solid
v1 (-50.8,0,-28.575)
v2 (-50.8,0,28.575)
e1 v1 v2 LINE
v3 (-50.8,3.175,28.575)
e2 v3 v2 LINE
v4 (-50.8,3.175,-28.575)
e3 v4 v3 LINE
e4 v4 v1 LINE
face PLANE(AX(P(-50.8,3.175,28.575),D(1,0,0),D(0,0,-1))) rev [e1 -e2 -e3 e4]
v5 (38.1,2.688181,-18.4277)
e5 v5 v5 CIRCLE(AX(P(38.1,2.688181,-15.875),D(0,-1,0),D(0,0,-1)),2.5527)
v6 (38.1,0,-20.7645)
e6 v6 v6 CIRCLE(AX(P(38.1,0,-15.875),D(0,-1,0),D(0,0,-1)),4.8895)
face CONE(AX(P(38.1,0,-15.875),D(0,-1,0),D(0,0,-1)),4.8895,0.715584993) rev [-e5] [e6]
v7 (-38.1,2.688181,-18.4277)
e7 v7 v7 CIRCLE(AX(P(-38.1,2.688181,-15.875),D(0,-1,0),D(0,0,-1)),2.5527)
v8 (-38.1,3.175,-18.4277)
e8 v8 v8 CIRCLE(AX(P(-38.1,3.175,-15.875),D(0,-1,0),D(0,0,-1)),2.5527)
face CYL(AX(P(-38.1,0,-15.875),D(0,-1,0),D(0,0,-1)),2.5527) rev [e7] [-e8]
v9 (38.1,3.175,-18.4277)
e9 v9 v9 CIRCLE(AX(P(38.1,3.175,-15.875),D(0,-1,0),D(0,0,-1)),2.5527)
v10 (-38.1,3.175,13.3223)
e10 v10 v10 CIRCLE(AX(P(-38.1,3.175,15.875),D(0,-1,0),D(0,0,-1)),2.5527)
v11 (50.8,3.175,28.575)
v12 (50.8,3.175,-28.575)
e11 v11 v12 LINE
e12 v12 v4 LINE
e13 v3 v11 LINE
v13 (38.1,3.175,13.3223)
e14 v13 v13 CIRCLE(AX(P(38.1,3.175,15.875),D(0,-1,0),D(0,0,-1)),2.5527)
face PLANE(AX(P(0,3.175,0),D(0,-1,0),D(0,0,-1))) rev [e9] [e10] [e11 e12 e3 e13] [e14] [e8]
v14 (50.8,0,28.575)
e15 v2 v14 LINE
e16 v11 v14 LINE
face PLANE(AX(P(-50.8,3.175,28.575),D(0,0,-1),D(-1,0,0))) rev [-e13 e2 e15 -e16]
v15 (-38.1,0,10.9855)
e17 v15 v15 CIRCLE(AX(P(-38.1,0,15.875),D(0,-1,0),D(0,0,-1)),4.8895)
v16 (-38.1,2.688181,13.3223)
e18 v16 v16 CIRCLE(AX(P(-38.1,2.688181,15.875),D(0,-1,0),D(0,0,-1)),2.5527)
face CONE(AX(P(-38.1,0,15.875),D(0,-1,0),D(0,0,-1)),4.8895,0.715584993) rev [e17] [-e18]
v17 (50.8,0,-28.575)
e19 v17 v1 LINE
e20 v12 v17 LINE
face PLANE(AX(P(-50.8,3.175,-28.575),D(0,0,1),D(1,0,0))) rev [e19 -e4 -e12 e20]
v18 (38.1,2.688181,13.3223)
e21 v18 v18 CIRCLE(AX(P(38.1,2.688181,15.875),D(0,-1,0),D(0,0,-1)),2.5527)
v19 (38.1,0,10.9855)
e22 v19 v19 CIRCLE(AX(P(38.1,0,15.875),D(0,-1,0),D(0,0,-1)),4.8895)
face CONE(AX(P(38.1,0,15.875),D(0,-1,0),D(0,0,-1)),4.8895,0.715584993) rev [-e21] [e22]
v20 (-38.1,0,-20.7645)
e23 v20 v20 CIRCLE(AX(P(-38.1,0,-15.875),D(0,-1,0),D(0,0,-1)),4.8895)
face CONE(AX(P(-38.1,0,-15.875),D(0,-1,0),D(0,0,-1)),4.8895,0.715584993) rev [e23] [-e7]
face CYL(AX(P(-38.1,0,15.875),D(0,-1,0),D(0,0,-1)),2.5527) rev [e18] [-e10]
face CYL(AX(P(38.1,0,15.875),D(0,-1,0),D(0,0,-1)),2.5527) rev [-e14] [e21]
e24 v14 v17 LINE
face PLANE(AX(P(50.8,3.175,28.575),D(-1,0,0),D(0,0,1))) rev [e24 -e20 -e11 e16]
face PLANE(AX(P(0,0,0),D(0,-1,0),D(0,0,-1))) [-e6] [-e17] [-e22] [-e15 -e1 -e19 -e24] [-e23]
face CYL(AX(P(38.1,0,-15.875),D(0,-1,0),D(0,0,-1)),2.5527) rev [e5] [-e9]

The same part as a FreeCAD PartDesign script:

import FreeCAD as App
import Part
import Sketcher

V = App.Vector
Q = App.Units.Quantity


def add_polygon(sketch, points):
    """Adds a closed chain of lines whose ends are joined by coincident constraints."""
    first, n = sketch.GeometryCount, len(points)
    for a, b in zip(points, points[1:] + points[:1]):
        sketch.addGeometry(Part.LineSegment(App.Vector(*a, 0), App.Vector(*b, 0)), False)
    for i in range(n):
        sketch.addConstraint(Sketcher.Constraint("Coincident", first + i, 2, first + (i + 1) % n, 1))

doc = App.newDocument("Part")
body = doc.addObject("PartDesign::Body", "Body")

sketch1 = body.newObject("Sketcher::SketchObject", "Sketch")
sketch1.AttachmentSupport = (doc.getObject("XZ_Plane"), [""])
sketch1.MapMode = "FlatFace"
add_polygon(sketch1, [(-51, -29), (-51, 29), (51, 29), (51, -29)])
sketch1.addConstraint(Sketcher.Constraint("Vertical", 0))
sketch1.addConstraint(Sketcher.Constraint("Horizontal", 1))
sketch1.addConstraint(Sketcher.Constraint("Vertical", 2))
sketch1.addConstraint(Sketcher.Constraint("Horizontal", 3))
sketch1.addConstraint(Sketcher.Constraint("Symmetric", 0, 2, 2, 2, -1, 1))
sketch1.addConstraint(Sketcher.Constraint("DistanceX", 1, 1, 1, 2, Q("4 in")))
sketch1.addConstraint(Sketcher.Constraint("DistanceY", 0, 1, 0, 2, Q("2.25 in")))
pad1 = body.newObject("PartDesign::Pad", "Pad")
pad1.Profile = sketch1
pad1.Length = Q("0.125 in")
pad1.Reversed = True

sketch2 = body.newObject("Sketcher::SketchObject", "Sketch001")
sketch2.AttachmentSupport = (doc.getObject("YZ_Plane"), [""])
sketch2.MapMode = "FlatFace"
sketch2.AttachmentOffset = App.Placement(V(0, 0, -1.5 * 25.4), App.Rotation())
add_polygon(sketch2, [(3.17, 15.88), (0, 15.88), (0, 10.99), (2.69, 13.32), (3.17, 13.32)])
sketch2.addGeometry(Part.LineSegment(V(0, 15.88, 0), V(3.17, 15.88, 0)), True)
sketch2.addConstraint(Sketcher.Constraint("Horizontal", 0))
sketch2.addConstraint(Sketcher.Constraint("Vertical", 1))
sketch2.addConstraint(Sketcher.Constraint("Horizontal", 3))
sketch2.addConstraint(Sketcher.Constraint("Vertical", 4))
sketch2.addConstraint(Sketcher.Constraint("Horizontal", 5))
sketch2.addConstraint(Sketcher.Constraint("Coincident", 5, 1, 0, 2))
sketch2.addConstraint(Sketcher.Constraint("PointOnObject", 0, 2, -2))
sketch2.addConstraint(Sketcher.Constraint("Vertical", 3, 2, 5, 2))
sketch2.addConstraint(Sketcher.Constraint("Angle", 2, Q("41 deg")))
sketch2.addConstraint(Sketcher.Constraint("DistanceX", 0, 2, 0, 1, Q("0.125 in")))
sketch2.addConstraint(Sketcher.Constraint("DistanceY", 1, 2, 1, 1, Q("0.1925 in")))
sketch2.addConstraint(Sketcher.Constraint("DistanceY", 4, 1, 4, 2, Q("0.1005 in")))
sketch2.addConstraint(Sketcher.Constraint("DistanceY", -1, 1, 0, 2, Q("0.625 in")))
groove = body.newObject("PartDesign::Groove", "Groove")
groove.Profile = sketch2
groove.ReferenceAxis = (sketch2, ["Axis0"])
groove.Angle = 360
doc.recompute()

linearpattern = body.newObject("PartDesign::LinearPattern", "LinearPattern")
linearpattern.Originals = [groove]
linearpattern.Direction = (doc.getObject("Z_Axis"), [""])
linearpattern.Mode = "offset"
linearpattern.Offset = Q("1.25 in")
linearpattern.Occurrences = 2
linearpattern.Reversed = True
body.Tip = linearpattern
doc.recompute()

linearpattern2 = body.newObject("PartDesign::LinearPattern", "LinearPattern001")
linearpattern2.Originals = [groove]
linearpattern2.Direction = (doc.getObject("X_Axis"), [""])
linearpattern2.Mode = "offset"
linearpattern2.Offset = Q("3 in")
linearpattern2.Occurrences = 2
body.Tip = linearpattern2
doc.recompute()

datumline = body.newObject("PartDesign::Line", "DatumLine")
datumline.Placement = App.Placement(V(0, 0, 0), App.Rotation(V(0, 0, 1), V(0.923076923, 0, -0.384615385)))
linearpattern3 = body.newObject("PartDesign::LinearPattern", "LinearPattern002")
linearpattern3.Originals = [groove]
linearpattern3.Direction = (datumline, [""])
linearpattern3.Mode = "offset"
linearpattern3.Offset = Q("3.25 in")
linearpattern3.Occurrences = 2
body.Tip = linearpattern3

doc.recompute()
